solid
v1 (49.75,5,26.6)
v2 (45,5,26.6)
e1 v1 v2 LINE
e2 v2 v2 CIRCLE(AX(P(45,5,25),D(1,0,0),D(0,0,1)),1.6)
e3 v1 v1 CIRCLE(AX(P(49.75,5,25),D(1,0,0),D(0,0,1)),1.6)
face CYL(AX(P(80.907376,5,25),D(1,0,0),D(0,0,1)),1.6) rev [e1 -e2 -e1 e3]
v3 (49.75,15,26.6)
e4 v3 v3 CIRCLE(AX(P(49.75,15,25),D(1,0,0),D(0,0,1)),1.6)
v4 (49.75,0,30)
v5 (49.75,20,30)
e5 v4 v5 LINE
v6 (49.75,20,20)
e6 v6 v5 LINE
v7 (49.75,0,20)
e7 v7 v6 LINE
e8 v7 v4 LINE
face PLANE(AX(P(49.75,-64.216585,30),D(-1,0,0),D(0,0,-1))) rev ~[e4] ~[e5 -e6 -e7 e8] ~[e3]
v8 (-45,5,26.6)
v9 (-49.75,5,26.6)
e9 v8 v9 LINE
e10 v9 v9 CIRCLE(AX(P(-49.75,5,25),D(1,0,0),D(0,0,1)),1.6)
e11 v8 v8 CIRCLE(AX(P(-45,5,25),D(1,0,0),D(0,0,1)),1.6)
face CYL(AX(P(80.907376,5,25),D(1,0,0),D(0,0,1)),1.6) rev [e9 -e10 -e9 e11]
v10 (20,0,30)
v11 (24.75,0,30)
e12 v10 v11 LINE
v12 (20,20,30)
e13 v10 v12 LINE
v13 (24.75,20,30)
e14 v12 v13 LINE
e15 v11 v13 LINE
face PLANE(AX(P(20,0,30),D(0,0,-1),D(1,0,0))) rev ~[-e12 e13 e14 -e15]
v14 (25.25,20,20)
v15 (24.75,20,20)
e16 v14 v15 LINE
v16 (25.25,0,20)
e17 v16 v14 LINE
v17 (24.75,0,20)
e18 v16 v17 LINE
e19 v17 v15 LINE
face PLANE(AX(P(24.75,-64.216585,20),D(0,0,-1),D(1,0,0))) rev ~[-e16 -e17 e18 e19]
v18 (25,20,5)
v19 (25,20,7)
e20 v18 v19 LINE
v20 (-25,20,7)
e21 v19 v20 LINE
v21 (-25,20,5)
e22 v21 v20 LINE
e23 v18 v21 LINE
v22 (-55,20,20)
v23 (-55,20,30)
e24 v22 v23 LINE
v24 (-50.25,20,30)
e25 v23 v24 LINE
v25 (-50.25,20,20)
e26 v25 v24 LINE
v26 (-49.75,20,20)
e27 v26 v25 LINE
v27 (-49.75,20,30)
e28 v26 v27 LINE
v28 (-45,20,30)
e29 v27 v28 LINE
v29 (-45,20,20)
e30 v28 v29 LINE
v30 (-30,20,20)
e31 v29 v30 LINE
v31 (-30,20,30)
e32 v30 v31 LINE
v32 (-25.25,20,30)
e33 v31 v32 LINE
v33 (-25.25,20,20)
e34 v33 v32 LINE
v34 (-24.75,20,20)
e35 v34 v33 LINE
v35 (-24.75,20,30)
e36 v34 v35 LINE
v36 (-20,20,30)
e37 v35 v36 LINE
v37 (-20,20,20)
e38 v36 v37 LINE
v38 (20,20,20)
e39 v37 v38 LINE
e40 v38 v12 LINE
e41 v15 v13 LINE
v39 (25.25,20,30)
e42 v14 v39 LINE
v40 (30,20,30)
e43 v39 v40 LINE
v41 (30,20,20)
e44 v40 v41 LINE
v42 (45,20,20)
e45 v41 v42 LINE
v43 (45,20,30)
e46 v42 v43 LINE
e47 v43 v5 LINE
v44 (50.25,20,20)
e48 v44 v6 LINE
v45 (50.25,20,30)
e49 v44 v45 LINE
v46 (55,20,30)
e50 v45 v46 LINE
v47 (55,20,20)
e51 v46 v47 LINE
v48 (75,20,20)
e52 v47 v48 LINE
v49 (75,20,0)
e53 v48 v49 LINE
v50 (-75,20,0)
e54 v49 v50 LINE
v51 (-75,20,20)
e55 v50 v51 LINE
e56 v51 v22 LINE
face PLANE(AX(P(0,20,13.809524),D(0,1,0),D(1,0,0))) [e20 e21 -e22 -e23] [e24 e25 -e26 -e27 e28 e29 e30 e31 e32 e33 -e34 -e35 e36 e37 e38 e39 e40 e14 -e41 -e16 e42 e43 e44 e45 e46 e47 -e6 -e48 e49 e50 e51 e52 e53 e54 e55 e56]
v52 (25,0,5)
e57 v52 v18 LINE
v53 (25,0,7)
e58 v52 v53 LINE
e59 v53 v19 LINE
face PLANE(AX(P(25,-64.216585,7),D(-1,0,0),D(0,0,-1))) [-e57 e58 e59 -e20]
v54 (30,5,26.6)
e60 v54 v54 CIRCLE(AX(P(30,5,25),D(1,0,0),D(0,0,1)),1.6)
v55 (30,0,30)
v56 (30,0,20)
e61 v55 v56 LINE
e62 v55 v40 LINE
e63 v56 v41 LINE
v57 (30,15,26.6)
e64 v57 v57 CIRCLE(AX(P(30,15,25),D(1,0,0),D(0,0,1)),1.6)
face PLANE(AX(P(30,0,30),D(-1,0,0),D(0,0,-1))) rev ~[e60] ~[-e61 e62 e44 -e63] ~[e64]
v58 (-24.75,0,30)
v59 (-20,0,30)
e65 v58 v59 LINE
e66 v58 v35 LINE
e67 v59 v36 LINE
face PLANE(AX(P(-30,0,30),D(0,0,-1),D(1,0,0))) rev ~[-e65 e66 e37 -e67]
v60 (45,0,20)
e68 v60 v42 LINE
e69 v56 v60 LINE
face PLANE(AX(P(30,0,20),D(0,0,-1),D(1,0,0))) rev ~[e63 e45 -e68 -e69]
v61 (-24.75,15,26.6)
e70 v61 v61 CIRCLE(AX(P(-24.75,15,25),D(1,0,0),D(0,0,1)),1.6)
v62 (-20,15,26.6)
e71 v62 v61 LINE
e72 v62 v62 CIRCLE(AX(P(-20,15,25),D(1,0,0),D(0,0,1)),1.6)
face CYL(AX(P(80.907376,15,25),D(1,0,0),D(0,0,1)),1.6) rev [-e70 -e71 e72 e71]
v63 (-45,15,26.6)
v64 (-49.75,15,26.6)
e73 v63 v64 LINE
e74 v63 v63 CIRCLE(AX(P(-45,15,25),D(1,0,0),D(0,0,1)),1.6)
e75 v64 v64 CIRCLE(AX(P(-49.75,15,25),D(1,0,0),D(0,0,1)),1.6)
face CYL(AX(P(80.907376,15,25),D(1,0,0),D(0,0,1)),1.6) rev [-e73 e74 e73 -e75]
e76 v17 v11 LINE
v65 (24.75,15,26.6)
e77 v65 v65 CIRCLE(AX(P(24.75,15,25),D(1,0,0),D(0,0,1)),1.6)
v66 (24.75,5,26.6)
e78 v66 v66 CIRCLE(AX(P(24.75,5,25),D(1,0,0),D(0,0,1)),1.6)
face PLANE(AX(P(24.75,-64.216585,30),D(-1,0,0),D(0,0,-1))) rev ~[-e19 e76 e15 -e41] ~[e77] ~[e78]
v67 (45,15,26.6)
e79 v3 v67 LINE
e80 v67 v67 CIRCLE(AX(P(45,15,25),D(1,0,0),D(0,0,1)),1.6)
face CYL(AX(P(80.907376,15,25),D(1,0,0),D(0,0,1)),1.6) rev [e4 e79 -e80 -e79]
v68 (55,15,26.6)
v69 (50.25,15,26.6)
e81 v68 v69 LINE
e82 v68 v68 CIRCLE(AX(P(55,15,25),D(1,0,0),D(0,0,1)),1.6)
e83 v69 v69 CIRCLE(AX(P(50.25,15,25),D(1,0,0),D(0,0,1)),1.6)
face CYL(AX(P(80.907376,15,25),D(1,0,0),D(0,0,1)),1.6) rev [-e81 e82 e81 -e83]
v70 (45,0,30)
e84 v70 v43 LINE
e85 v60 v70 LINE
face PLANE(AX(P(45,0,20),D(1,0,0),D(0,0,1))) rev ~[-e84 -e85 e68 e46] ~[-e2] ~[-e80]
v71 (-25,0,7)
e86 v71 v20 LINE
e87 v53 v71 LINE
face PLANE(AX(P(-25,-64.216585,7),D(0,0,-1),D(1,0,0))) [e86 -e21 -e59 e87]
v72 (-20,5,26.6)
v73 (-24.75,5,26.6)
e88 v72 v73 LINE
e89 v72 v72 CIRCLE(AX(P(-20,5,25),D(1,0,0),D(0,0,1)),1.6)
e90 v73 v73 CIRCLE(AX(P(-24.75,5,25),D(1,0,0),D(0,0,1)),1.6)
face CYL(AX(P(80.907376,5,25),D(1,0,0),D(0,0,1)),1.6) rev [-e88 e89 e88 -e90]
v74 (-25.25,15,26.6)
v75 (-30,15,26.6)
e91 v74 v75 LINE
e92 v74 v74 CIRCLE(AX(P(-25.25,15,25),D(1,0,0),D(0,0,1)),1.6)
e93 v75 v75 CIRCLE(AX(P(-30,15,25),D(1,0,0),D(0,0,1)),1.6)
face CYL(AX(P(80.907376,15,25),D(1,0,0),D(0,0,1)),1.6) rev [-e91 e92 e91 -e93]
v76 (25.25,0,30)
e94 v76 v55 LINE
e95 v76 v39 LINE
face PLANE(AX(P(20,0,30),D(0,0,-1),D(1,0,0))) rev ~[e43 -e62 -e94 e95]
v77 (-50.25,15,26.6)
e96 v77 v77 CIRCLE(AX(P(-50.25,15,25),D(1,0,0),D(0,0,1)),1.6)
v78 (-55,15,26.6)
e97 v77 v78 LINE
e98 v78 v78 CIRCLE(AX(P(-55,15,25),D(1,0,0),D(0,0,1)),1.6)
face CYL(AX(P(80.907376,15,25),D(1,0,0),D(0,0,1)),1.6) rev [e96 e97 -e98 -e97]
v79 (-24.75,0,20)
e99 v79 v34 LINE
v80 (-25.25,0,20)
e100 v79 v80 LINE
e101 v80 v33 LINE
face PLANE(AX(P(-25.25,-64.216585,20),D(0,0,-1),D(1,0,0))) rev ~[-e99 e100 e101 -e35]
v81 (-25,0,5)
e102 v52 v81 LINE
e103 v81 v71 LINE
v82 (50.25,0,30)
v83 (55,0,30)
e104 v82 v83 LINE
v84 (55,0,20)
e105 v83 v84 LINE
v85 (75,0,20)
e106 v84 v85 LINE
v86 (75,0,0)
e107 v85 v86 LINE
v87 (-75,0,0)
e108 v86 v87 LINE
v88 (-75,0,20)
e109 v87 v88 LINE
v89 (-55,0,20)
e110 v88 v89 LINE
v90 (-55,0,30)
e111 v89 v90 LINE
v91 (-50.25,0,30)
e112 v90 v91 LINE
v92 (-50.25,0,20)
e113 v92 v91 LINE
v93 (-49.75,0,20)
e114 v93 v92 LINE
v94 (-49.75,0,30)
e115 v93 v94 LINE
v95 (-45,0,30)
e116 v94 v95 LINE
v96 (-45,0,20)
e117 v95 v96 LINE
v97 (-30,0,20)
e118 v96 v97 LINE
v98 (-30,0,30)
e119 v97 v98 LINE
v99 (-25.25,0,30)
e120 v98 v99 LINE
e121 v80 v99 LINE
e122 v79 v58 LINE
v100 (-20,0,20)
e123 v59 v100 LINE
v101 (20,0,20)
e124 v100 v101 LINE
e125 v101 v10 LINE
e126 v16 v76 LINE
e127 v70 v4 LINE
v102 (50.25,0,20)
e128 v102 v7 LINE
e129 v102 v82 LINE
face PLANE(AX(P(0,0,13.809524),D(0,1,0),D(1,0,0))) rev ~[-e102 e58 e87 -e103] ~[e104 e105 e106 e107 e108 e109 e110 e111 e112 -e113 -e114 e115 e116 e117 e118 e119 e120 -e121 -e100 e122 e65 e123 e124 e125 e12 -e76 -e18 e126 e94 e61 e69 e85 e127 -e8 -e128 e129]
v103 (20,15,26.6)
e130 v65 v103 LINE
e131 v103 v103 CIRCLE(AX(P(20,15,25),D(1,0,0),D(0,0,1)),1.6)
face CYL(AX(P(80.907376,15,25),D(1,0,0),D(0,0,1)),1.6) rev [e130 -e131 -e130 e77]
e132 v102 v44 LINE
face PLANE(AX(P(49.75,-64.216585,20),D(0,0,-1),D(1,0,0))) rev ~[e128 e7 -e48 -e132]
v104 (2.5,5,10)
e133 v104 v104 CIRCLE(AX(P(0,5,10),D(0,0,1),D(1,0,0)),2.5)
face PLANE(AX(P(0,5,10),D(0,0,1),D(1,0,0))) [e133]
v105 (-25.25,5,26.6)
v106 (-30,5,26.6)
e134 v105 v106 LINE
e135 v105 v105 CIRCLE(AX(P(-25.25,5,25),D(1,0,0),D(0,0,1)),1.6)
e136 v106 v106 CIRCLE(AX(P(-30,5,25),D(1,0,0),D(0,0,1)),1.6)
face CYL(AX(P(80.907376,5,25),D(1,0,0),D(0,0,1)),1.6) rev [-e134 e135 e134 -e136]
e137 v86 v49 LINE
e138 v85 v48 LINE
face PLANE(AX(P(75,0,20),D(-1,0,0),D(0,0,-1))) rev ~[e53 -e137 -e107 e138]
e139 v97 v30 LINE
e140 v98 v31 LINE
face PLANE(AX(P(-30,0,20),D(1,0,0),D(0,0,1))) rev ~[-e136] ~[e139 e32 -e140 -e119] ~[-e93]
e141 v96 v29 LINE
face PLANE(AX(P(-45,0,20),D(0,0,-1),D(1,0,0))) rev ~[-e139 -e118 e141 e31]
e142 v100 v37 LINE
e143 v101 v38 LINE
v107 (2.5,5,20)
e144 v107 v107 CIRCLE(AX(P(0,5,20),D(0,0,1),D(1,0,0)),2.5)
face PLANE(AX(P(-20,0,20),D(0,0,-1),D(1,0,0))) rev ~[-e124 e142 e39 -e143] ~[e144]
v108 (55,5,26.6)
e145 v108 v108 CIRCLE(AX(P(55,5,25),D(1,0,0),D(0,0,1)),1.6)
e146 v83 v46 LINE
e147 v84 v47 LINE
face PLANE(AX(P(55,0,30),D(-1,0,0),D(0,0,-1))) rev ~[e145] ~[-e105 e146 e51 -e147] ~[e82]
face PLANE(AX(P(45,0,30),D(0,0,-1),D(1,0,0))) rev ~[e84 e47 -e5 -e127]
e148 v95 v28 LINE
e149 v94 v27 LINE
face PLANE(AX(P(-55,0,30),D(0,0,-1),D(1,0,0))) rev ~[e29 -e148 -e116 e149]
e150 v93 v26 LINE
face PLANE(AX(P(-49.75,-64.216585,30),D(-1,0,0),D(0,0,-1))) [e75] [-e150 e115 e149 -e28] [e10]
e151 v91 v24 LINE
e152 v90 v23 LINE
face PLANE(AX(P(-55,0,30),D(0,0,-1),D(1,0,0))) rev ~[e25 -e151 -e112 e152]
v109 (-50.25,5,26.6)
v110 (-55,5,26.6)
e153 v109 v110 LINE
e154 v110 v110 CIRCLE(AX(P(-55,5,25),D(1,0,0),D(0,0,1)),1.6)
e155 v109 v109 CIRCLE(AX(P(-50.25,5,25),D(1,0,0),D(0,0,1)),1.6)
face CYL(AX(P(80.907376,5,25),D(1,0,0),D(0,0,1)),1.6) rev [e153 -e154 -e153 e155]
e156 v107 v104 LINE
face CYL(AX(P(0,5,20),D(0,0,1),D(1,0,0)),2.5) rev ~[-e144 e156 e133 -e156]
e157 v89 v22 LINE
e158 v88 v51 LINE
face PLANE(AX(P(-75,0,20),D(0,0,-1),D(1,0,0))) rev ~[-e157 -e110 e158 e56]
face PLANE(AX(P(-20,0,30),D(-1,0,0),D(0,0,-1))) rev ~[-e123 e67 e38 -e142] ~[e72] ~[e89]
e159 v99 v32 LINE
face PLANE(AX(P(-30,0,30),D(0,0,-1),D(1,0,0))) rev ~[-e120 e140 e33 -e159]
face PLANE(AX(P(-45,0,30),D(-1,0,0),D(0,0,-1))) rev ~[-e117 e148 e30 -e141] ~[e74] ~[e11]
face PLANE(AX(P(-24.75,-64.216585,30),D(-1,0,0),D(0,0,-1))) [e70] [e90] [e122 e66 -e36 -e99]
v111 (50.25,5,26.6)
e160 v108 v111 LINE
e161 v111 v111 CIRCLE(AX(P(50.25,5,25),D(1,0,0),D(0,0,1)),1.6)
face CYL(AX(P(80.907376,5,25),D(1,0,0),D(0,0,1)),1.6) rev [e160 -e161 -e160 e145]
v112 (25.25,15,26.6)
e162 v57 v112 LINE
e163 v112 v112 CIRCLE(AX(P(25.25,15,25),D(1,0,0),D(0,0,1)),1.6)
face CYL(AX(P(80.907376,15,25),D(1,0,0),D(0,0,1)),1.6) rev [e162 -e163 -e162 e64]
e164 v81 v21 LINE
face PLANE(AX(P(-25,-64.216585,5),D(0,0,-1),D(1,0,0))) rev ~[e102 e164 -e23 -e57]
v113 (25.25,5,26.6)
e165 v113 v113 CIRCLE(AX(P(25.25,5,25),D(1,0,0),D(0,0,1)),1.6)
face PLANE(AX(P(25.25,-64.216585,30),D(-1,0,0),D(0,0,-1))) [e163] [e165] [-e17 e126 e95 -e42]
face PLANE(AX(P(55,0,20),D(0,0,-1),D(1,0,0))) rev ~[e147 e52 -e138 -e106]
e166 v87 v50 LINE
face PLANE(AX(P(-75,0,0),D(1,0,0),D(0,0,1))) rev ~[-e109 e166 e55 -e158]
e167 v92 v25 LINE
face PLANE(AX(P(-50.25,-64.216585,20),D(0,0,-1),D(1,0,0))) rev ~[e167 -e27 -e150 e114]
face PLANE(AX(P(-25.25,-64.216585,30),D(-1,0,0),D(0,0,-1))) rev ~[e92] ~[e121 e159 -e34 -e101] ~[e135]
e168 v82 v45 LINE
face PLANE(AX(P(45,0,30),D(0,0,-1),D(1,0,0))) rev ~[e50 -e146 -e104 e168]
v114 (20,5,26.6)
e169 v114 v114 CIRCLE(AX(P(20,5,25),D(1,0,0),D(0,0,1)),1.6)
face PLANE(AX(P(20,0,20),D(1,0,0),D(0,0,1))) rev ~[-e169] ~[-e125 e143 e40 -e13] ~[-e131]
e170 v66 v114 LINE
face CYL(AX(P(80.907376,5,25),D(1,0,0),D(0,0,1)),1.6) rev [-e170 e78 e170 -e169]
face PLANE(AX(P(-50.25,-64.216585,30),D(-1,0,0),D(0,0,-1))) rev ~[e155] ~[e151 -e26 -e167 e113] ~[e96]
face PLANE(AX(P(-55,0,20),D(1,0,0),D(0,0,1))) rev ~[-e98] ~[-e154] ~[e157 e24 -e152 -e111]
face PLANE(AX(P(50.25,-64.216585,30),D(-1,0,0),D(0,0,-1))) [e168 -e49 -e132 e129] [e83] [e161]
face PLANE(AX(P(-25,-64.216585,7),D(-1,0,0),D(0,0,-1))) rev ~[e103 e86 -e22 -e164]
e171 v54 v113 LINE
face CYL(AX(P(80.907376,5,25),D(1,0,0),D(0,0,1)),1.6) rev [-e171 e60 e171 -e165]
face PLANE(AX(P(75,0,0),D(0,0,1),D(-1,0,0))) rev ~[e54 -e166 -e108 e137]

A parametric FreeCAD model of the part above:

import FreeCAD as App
import Part
import Sketcher
from FreeCAD import Vector

doc = App.newDocument("Part")
body = doc.addObject("PartDesign::Body", "Body")

sketch1 = body.newObject("Sketcher::SketchObject", "Sketch")
sketch1.AttachmentSupport = (doc.getObject("XZ_Plane"), [""])
sketch1.MapMode = "FlatFace"
sketch1.addGeometry([
    Part.LineSegment(Vector(-75, 0, 0), Vector(-75, 20, 0)),
    Part.LineSegment(Vector(-75, 20, 0), Vector(-55, 20, 0)),
    Part.LineSegment(Vector(-55, 20, 0), Vector(-55, 30, 0)),
    Part.LineSegment(Vector(-55, 30, 0), Vector(-45, 30, 0)),
    Part.LineSegment(Vector(-45, 30, 0), Vector(-45, 20, 0)),
    Part.LineSegment(Vector(-45, 20, 0), Vector(-30, 20, 0)),
    Part.LineSegment(Vector(-30, 20, 0), Vector(-30, 30, 0)),
    Part.LineSegment(Vector(-30, 30, 0), Vector(-20, 30, 0)),
    Part.LineSegment(Vector(-20, 30, 0), Vector(-20, 20, 0)),
    Part.LineSegment(Vector(-20, 20, 0), Vector(20, 20, 0)),
    Part.LineSegment(Vector(20, 20, 0), Vector(20, 30, 0)),
    Part.LineSegment(Vector(20, 30, 0), Vector(30, 30, 0)),
    Part.LineSegment(Vector(30, 30, 0), Vector(30, 20, 0)),
    Part.LineSegment(Vector(30, 20, 0), Vector(45, 20, 0)),
    Part.LineSegment(Vector(45, 20, 0), Vector(45, 30, 0)),
    Part.LineSegment(Vector(45, 30, 0), Vector(55, 30, 0)),
    Part.LineSegment(Vector(55, 30, 0), Vector(55, 20, 0)),
    Part.LineSegment(Vector(55, 20, 0), Vector(75, 20, 0)),
    Part.LineSegment(Vector(75, 20, 0), Vector(75, 0, 0)),
    Part.LineSegment(Vector(75, 0, 0), Vector(-75, 0, 0)),
], False)
sketch1.addConstraint([
    Sketcher.Constraint("Coincident", 0, 2, 1, 1),
    Sketcher.Constraint("Coincident", 1, 2, 2, 1),
    Sketcher.Constraint("Coincident", 2, 2, 3, 1),
    Sketcher.Constraint("Coincident", 3, 2, 4, 1),
    Sketcher.Constraint("Coincident", 4, 2, 5, 1),
    Sketcher.Constraint("Coincident", 5, 2, 6, 1),
    Sketcher.Constraint("Coincident", 6, 2, 7, 1),
    Sketcher.Constraint("Coincident", 7, 2, 8, 1),
    Sketcher.Constraint("Coincident", 8, 2, 9, 1),
    Sketcher.Constraint("Coincident", 9, 2, 10, 1),
    Sketcher.Constraint("Coincident", 10, 2, 11, 1),
    Sketcher.Constraint("Coincident", 11, 2, 12, 1),
    Sketcher.Constraint("Coincident", 12, 2, 13, 1),
    Sketcher.Constraint("Coincident", 13, 2, 14, 1),
    Sketcher.Constraint("Coincident", 14, 2, 15, 1),
    Sketcher.Constraint("Coincident", 15, 2, 16, 1),
    Sketcher.Constraint("Coincident", 16, 2, 17, 1),
    Sketcher.Constraint("Coincident", 17, 2, 18, 1),
    Sketcher.Constraint("Coincident", 18, 2, 19, 1),
    Sketcher.Constraint("Coincident", 19, 2, 0, 1),
    Sketcher.Constraint("Vertical", 0),
    Sketcher.Constraint("Horizontal", 1),
    Sketcher.Constraint("Vertical", 2),
    Sketcher.Constraint("Horizontal", 3),
    Sketcher.Constraint("Vertical", 4),
    Sketcher.Constraint("Horizontal", 5),
    Sketcher.Constraint("Vertical", 6),
    Sketcher.Constraint("Horizontal", 7),
    Sketcher.Constraint("Vertical", 8),
    Sketcher.Constraint("Horizontal", 9),
    Sketcher.Constraint("Vertical", 10),
    Sketcher.Constraint("Horizontal", 11),
    Sketcher.Constraint("Vertical", 12),
    Sketcher.Constraint("Horizontal", 13),
    Sketcher.Constraint("Vertical", 14),
    Sketcher.Constraint("Horizontal", 15),
    Sketcher.Constraint("Vertical", 16),
    Sketcher.Constraint("Horizontal", 17),
    Sketcher.Constraint("Vertical", 18),
    Sketcher.Constraint("Horizontal", 19),
    Sketcher.Constraint("Symmetric", 18, 2, 19, 2, -1, 1),
    Sketcher.Constraint("Symmetric", 7, 2, 10, 2, -2),
    Sketcher.Constraint("Symmetric", 5, 2, 12, 2, -2),
    Sketcher.Constraint("Symmetric", 3, 2, 14, 2, -2),
    Sketcher.Constraint("Symmetric", 1, 2, 16, 2, -2),
    Sketcher.Constraint("Horizontal", 1, 2, 4, 2),
    Sketcher.Constraint("Horizontal", 3, 2, 6, 2),
    Sketcher.Constraint("Horizontal", 5, 2, 8, 2),
    Sketcher.Constraint("Equal", 3, 7),
    Sketcher.Constraint("Equal", 17, 0),
    Sketcher.Constraint("Equal", 15, 2),
    Sketcher.Constraint("DistanceX", 1, 1, 1, 2, 20.0),
    Sketcher.Constraint("DistanceX", 3, 1, 3, 2, 10.0),
    Sketcher.Constraint("DistanceX", 5, 1, 5, 2, 15.0),
    Sketcher.Constraint("DistanceX", 9, 1, 9, 2, 40.0),
])
pad1 = body.newObject("PartDesign::Pad", "Pad")
pad1.Profile = sketch1
pad1.Length = 20
pad1.Reversed = True

sketch2 = body.newObject("Sketcher::SketchObject", "Sketch001")
sketch2.AttachmentSupport = (doc.getObject("XZ_Plane"), [""])
sketch2.MapMode = "FlatFace"
sketch2.AttachmentOffset = App.Placement(Vector(0, 0, -20), App.Rotation())
sketch2.addGeometry([
    Part.LineSegment(Vector(-50.2, 20, 0), Vector(-50.2, 30, 0)),
    Part.LineSegment(Vector(-50.2, 30, 0), Vector(-49.8, 30, 0)),
    Part.LineSegment(Vector(-49.8, 30, 0), Vector(-49.8, 20, 0)),
    Part.LineSegment(Vector(-49.8, 20, 0), Vector(-50.2, 20, 0)),
    Part.LineSegment(Vector(-25.2, 20, 0), Vector(-25.2, 30, 0)),
    Part.LineSegment(Vector(-25.2, 30, 0), Vector(-24.8, 30, 0)),
    Part.LineSegment(Vector(-24.8, 30, 0), Vector(-24.8, 20, 0)),
    Part.LineSegment(Vector(-24.8, 20, 0), Vector(-25.2, 20, 0)),
    Part.LineSegment(Vector(24.8, 20, 0), Vector(24.8, 30, 0)),
    Part.LineSegment(Vector(24.8, 30, 0), Vector(25.2, 30, 0)),
    Part.LineSegment(Vector(25.2, 30, 0), Vector(25.2, 20, 0)),
    Part.LineSegment(Vector(25.2, 20, 0), Vector(24.8, 20, 0)),
    Part.LineSegment(Vector(49.8, 20, 0), Vector(49.8, 30, 0)),
    Part.LineSegment(Vector(49.8, 30, 0), Vector(50.2, 30, 0)),
    Part.LineSegment(Vector(50.2, 30, 0), Vector(50.2, 20, 0)),
    Part.LineSegment(Vector(50.2, 20, 0), Vector(49.8, 20, 0)),
], False)
sketch2.addConstraint([
    Sketcher.Constraint("Coincident", 0, 2, 1, 1),
    Sketcher.Constraint("Coincident", 1, 2, 2, 1),
    Sketcher.Constraint("Coincident", 2, 2, 3, 1),
    Sketcher.Constraint("Coincident", 3, 2, 0, 1),
    Sketcher.Constraint("Coincident", 4, 2, 5, 1),
    Sketcher.Constraint("Coincident", 5, 2, 6, 1),
    Sketcher.Constraint("Coincident", 6, 2, 7, 1),
    Sketcher.Constraint("Coincident", 7, 2, 4, 1),
    Sketcher.Constraint("Coincident", 8, 2, 9, 1),
    Sketcher.Constraint("Coincident", 9, 2, 10, 1),
    Sketcher.Constraint("Coincident", 10, 2, 11, 1),
    Sketcher.Constraint("Coincident", 11, 2, 8, 1),
    Sketcher.Constraint("Coincident", 12, 2, 13, 1),
    Sketcher.Constraint("Coincident", 13, 2, 14, 1),
    Sketcher.Constraint("Coincident", 14, 2, 15, 1),
    Sketcher.Constraint("Coincident", 15, 2, 12, 1),
    Sketcher.Constraint("Vertical", 0),
    Sketcher.Constraint("Horizontal", 1),
    Sketcher.Constraint("Vertical", 2),
    Sketcher.Constraint("Horizontal", 3),
    Sketcher.Constraint("Vertical", 4),
    Sketcher.Constraint("Horizontal", 5),
    Sketcher.Constraint("Vertical", 6),
    Sketcher.Constraint("Horizontal", 7),
    Sketcher.Constraint("Vertical", 8),
    Sketcher.Constraint("Horizontal", 9),
    Sketcher.Constraint("Vertical", 10),
    Sketcher.Constraint("Horizontal", 11),
    Sketcher.Constraint("Vertical", 12),
    Sketcher.Constraint("Horizontal", 13),
    Sketcher.Constraint("Vertical", 14),
    Sketcher.Constraint("Horizontal", 15),
    Sketcher.Constraint("Symmetric", 5, 2, 8, 2, -2),
    Sketcher.Constraint("Symmetric", 7, 2, 10, 2, -2),
    Sketcher.Constraint("Symmetric", 1, 2, 12, 2, -2),
    Sketcher.Constraint("Symmetric", 3, 2, 14, 2, -2),
    Sketcher.Constraint("Horizontal", 1, 2, 4, 2),
    Sketcher.Constraint("Horizontal", 3, 2, 6, 2),
    Sketcher.Constraint("Equal", 3, 5),
    Sketcher.Constraint("DistanceY", 0, 1, 0, 2, 10.0),
    Sketcher.Constraint("DistanceX", 1, 1, 1, 2, 0.5),
    Sketcher.Constraint("DistanceY", -1, 1, 0, 2, 30.0),
    Sketcher.Constraint("DistanceX", 0, 2, 4, 2, 25.0),
    Sketcher.Constraint("DistanceX", 4, 2, 8, 2, 50.0),
])
pocket1 = body.newObject("PartDesign::Pocket", "Pocket")
pocket1.Profile = sketch2
pocket1.Type = "ThroughAll"
pocket1.Midplane = True

sketch3 = body.newObject("Sketcher::SketchObject", "Sketch002")
sketch3.AttachmentSupport = (doc.getObject("YZ_Plane"), [""])
sketch3.MapMode = "FlatFace"
sketch3.AttachmentOffset = App.Placement(Vector(0, 0, -55), App.Rotation())
sketch3.addGeometry([
    Part.Circle(Vector(15, 25, 0), Vector(0, 0, 1), 1.6),
    Part.Circle(Vector(5, 25, 0), Vector(0, 0, 1), 1.6),
], False)
sketch3.addConstraint([
    Sketcher.Constraint("Equal", 0, 1),
    Sketcher.Constraint("Horizontal", 0, 3, 1, 3),
    Sketcher.Constraint("Diameter", 0, 3.2),
    Sketcher.Constraint("DistanceX", -1, 1, 0, 3, 15.0),
    Sketcher.Constraint("DistanceY", -1, 1, 0, 3, 25.0),
    Sketcher.Constraint("DistanceX", -1, 1, 1, 3, 5.0),
])
pocket2 = body.newObject("PartDesign::Pocket", "Pocket001")
pocket2.Profile = sketch3
pocket2.Type = "ThroughAll"
pocket2.Midplane = True

sketch4 = body.newObject("Sketcher::SketchObject", "Sketch003")
sketch4.AttachmentSupport = (doc.getObject("XZ_Plane"), [""])
sketch4.MapMode = "FlatFace"
sketch4.AttachmentOffset = App.Placement(Vector(0, 0, -20), App.Rotation())
sketch4.addGeometry([
    Part.LineSegment(Vector(-25, 5, 0), Vector(-25, 7, 0)),
    Part.LineSegment(Vector(-25, 7, 0), Vector(25, 7, 0)),
    Part.LineSegment(Vector(25, 7, 0), Vector(25, 5, 0)),
    Part.LineSegment(Vector(25, 5, 0), Vector(-25, 5, 0)),
], False)
sketch4.addConstraint([
    Sketcher.Constraint("Coincident", 0, 2, 1, 1),
    Sketcher.Constraint("Coincident", 1, 2, 2, 1),
    Sketcher.Constraint("Coincident", 2, 2, 3, 1),
    Sketcher.Constraint("Coincident", 3, 2, 0, 1),
    Sketcher.Constraint("Vertical", 0),
    Sketcher.Constraint("Horizontal", 1),
    Sketcher.Constraint("Vertical", 2),
    Sketcher.Constraint("Horizontal", 3),
    Sketcher.Constraint("DistanceX", 1, 1, 1, 2, 50.0),
    Sketcher.Constraint("DistanceY", 0, 1, 0, 2, 2.0),
    Sketcher.Constraint("DistanceX", 0, 2, -1, 1, 25.0),
    Sketcher.Constraint("DistanceY", -1, 1, 0, 2, 7.0),
])
pocket3 = body.newObject("PartDesign::Pocket", "Pocket002")
pocket3.Profile = sketch4
pocket3.Type = "ThroughAll"
pocket3.Midplane = True

sketch5 = body.newObject("Sketcher::SketchObject", "Sketch004")
sketch5.AttachmentSupport = (doc.getObject("XY_Plane"), [""])
sketch5.MapMode = "FlatFace"
sketch5.AttachmentOffset = App.Placement(Vector(0, 0, 20), App.Rotation())
sketch5.addGeometry(Part.Circle(Vector(0, 5, 0), Vector(0, 0, 1), 2.5), False)
sketch5.addConstraint([
    Sketcher.Constraint("PointOnObject", 0, 3, -2),
    Sketcher.Constraint("Diameter", 0, 5.0),
    Sketcher.Constraint("DistanceY", -1, 1, 0, 3, 5.0),
])
pocket4 = body.newObject("PartDesign::Pocket", "Pocket003")
pocket4.Profile = sketch5
pocket4.Length = 10

doc.recompute()
